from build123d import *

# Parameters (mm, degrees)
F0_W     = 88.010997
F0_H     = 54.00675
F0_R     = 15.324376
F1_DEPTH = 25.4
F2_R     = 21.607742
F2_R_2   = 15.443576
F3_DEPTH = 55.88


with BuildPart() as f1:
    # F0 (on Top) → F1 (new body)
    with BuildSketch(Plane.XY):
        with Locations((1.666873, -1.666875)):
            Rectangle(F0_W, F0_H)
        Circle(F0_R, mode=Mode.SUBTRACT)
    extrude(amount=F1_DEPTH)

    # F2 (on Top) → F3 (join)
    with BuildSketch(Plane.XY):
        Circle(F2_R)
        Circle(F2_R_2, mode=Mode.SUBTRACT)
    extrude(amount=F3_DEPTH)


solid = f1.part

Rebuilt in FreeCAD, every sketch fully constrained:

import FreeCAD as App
import Part
import Sketcher

V = App.Vector
Q = App.Units.Quantity

doc = App.newDocument("Part")
params = doc.addObject("Spreadsheet::Sheet", "Params")
for row, (alias, value) in enumerate([
    ("sketch1_width", "3.4649999 in"),
    ("pad1_length", "1 in"),
    ("pad2_length", "2.2 in"),
], start=1):
    params.set(f"A{row}", alias)
    params.set(f"B{row}", "=" + value)
    params.setAlias(f"B{row}", alias)

body = doc.addObject("PartDesign::Body", "Body")

# Sketch on XY plane
sketch1 = body.newObject("Sketcher::SketchObject", "Sketch")
sketch1.AttachmentSupport = (doc.getObject("XY_Plane"), [""])
sketch1.MapMode = "FlatFace"
sketch1.addGeometry([
    Part.LineSegment(V(-42.338625, 25.3365, 0), V(-42.338625, -28.67025, 0)),  # 0
    Part.LineSegment(V(-42.338625, -28.67025, 0), V(45.672371, -28.67025, 0)),  # 1
    Part.LineSegment(V(45.672371, -28.67025, 0), V(45.672371, 25.3365, 0)),  # 2
    Part.LineSegment(V(45.672371, 25.3365, 0), V(-42.338625, 25.3365, 0)),  # 3
    Part.Circle(V(0, 0, 0), V(0, 0, 1), 15.324376),  # 4
], False)
sketch1.addConstraint([
    Sketcher.Constraint("Coincident", 0, 2, 1, 1),
    Sketcher.Constraint("Coincident", 1, 2, 2, 1),
    Sketcher.Constraint("Coincident", 2, 2, 3, 1),
    Sketcher.Constraint("Coincident", 3, 2, 0, 1),
    Sketcher.Constraint("Vertical", 0),
    Sketcher.Constraint("Horizontal", 1),
    Sketcher.Constraint("Vertical", 2),
    Sketcher.Constraint("Horizontal", 3),
    Sketcher.Constraint("Coincident", 4, 3, -1, 1),
    Sketcher.Constraint("DistanceX", 1, 1, 1, 2, Q("3.4649999 in")),
    Sketcher.Constraint("Diameter", 4, Q("30.648752 mm")),
    Sketcher.Constraint("DistanceY", -1, 1, 2, 2, Q("0.9975 in")),
    Sketcher.Constraint("DistanceY", 0, 2, 0, 1, Q("54.00675 mm")),
    Sketcher.Constraint("DistanceX", -1, 1, 1, 2, Q("45.672371 mm")),
])
sketch1.setExpression("Constraints[9]", "Params.sketch1_width")
pad1 = body.newObject("PartDesign::Pad", "Pad")
pad1.Profile = sketch1
pad1.setExpression("Length", "Params.pad1_length")

# Sketch on XY plane
sketch2 = body.newObject("Sketcher::SketchObject", "Sketch001")
sketch2.AttachmentSupport = (doc.getObject("XY_Plane"), [""])
sketch2.MapMode = "FlatFace"
sketch2.addGeometry([
    Part.Circle(V(0, 0, 0), V(0, 0, 1), 21.607742),
    Part.Circle(V(0, 0, 0), V(0, 0, 1), 15.443576),
], False)
sketch2.addConstraint([
    Sketcher.Constraint("Coincident", 0, 3, -1, 1),
    Sketcher.Constraint("Coincident", 1, 3, -1, 1),
    Sketcher.Constraint("Diameter", 0, Q("43.215484 mm")),
    Sketcher.Constraint("Diameter", 1, Q("30.887152 mm")),
])
pad2 = body.newObject("PartDesign::Pad", "Pad001")
pad2.Profile = sketch2
pad2.setExpression("Length", "Params.pad2_length")

doc.recompute()
